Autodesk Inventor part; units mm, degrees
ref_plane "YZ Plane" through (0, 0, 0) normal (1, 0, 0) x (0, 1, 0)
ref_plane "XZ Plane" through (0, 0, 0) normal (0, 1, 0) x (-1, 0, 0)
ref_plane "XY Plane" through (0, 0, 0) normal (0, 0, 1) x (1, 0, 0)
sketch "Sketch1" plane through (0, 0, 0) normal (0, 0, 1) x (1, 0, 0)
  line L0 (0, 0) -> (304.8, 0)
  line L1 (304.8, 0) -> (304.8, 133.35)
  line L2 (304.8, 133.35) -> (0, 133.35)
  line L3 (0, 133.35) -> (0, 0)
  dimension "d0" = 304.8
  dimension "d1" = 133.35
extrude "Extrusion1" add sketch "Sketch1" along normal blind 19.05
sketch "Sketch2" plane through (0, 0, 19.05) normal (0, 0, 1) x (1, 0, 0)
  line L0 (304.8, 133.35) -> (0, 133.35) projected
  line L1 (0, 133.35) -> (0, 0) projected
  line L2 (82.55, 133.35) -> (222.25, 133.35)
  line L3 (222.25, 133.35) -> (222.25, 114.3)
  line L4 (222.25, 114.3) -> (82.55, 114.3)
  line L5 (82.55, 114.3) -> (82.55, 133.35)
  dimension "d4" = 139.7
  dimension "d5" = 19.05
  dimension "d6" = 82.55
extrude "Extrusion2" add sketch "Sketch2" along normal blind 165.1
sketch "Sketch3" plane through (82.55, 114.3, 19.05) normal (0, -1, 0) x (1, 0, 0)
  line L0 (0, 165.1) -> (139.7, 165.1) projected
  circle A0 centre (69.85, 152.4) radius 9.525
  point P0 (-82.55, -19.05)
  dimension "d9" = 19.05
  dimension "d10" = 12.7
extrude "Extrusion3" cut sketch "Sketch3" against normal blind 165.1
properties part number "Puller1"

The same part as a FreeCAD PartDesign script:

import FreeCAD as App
import Part
import Sketcher
from FreeCAD import Vector
Q = App.Units.Quantity

doc = App.newDocument("Part")
body = doc.addObject("PartDesign::Body", "Body")

# Sketch on XY plane
sketch1 = body.newObject("Sketcher::SketchObject", "Sketch")
sketch1.AttachmentSupport = (doc.getObject("XY_Plane"), [""])
sketch1.MapMode = "FlatFace"
sketch1.addGeometry([
    Part.LineSegment(Vector(0, 133, 0), Vector(0, 0, 0)),
    Part.LineSegment(Vector(0, 0, 0), Vector(305, 0, 0)),
    Part.LineSegment(Vector(305, 0, 0), Vector(305, 133, 0)),
    Part.LineSegment(Vector(305, 133, 0), Vector(0, 133, 0)),
], False)
sketch1.addConstraint([
    Sketcher.Constraint("Coincident", 0, 2, 1, 1),
    Sketcher.Constraint("Coincident", 1, 2, 2, 1),
    Sketcher.Constraint("Coincident", 2, 2, 3, 1),
    Sketcher.Constraint("Coincident", 3, 2, 0, 1),
    Sketcher.Constraint("Vertical", 0),
    Sketcher.Constraint("Horizontal", 1),
    Sketcher.Constraint("Vertical", 2),
    Sketcher.Constraint("Horizontal", 3),
    Sketcher.Constraint("Coincident", 0, 2, -1, 1),
    Sketcher.Constraint("DistanceX", 1, 1, 1, 2, Q("12 in")),
    Sketcher.Constraint("DistanceY", 0, 2, 0, 1, Q("5.25 in")),
])
pad1 = body.newObject("PartDesign::Pad", "Pad")
pad1.Profile = sketch1
pad1.Length = Q("0.75 in")

# Sketch on XY plane
sketch2 = body.newObject("Sketcher::SketchObject", "Sketch001")
sketch2.AttachmentSupport = (doc.getObject("XY_Plane"), [""])
sketch2.MapMode = "FlatFace"
sketch2.AttachmentOffset = App.Placement(Vector(0, 0, 0.75 * 25.4), App.Rotation())
sketch2.addGeometry([
    Part.LineSegment(Vector(222, 114, 0), Vector(222, 133, 0)),
    Part.LineSegment(Vector(222, 133, 0), Vector(83, 133, 0)),
    Part.LineSegment(Vector(83, 133, 0), Vector(83, 114, 0)),
    Part.LineSegment(Vector(83, 114, 0), Vector(222, 114, 0)),
], False)
sketch2.addConstraint([
    Sketcher.Constraint("Coincident", 0, 2, 1, 1),
    Sketcher.Constraint("Coincident", 1, 2, 2, 1),
    Sketcher.Constraint("Coincident", 2, 2, 3, 1),
    Sketcher.Constraint("Coincident", 3, 2, 0, 1),
    Sketcher.Constraint("Vertical", 0),
    Sketcher.Constraint("Horizontal", 1),
    Sketcher.Constraint("Vertical", 2),
    Sketcher.Constraint("Horizontal", 3),
    Sketcher.Constraint("DistanceX", 1, 2, 1, 1, Q("5.5 in")),
    Sketcher.Constraint("DistanceY", 0, 1, 0, 2, Q("0.75 in")),
    Sketcher.Constraint("DistanceX", -1, 1, 1, 2, Q("3.25 in")),
    Sketcher.Constraint("DistanceY", -1, 1, 2, 2, Q("4.5 in")),
])
pad2 = body.newObject("PartDesign::Pad", "Pad001")
pad2.Profile = sketch2
pad2.Length = Q("6.5 in")

# Sketch on XZ plane
sketch3 = body.newObject("Sketcher::SketchObject", "Sketch002")
sketch3.AttachmentSupport = (doc.getObject("XZ_Plane"), [""])
sketch3.MapMode = "FlatFace"
sketch3.AttachmentOffset = App.Placement(Vector(0, 0, -4.5 * 25.4), App.Rotation())
sketch3.addGeometry(Part.Circle(Vector(152, 171, 0), Vector(0, 0, 1), 10), False)
sketch3.addConstraint([
    Sketcher.Constraint("Diameter", 0, Q("0.75 in")),
    Sketcher.Constraint("DistanceX", -1, 1, 0, 3, Q("6 in")),
    Sketcher.Constraint("DistanceY", -1, 1, 0, 3, Q("6.75 in")),
])
pocket1 = body.newObject("PartDesign::Pocket", "Pocket")
pocket1.Profile = sketch3
pocket1.Length = Q("6.5 in")

doc.recompute()
